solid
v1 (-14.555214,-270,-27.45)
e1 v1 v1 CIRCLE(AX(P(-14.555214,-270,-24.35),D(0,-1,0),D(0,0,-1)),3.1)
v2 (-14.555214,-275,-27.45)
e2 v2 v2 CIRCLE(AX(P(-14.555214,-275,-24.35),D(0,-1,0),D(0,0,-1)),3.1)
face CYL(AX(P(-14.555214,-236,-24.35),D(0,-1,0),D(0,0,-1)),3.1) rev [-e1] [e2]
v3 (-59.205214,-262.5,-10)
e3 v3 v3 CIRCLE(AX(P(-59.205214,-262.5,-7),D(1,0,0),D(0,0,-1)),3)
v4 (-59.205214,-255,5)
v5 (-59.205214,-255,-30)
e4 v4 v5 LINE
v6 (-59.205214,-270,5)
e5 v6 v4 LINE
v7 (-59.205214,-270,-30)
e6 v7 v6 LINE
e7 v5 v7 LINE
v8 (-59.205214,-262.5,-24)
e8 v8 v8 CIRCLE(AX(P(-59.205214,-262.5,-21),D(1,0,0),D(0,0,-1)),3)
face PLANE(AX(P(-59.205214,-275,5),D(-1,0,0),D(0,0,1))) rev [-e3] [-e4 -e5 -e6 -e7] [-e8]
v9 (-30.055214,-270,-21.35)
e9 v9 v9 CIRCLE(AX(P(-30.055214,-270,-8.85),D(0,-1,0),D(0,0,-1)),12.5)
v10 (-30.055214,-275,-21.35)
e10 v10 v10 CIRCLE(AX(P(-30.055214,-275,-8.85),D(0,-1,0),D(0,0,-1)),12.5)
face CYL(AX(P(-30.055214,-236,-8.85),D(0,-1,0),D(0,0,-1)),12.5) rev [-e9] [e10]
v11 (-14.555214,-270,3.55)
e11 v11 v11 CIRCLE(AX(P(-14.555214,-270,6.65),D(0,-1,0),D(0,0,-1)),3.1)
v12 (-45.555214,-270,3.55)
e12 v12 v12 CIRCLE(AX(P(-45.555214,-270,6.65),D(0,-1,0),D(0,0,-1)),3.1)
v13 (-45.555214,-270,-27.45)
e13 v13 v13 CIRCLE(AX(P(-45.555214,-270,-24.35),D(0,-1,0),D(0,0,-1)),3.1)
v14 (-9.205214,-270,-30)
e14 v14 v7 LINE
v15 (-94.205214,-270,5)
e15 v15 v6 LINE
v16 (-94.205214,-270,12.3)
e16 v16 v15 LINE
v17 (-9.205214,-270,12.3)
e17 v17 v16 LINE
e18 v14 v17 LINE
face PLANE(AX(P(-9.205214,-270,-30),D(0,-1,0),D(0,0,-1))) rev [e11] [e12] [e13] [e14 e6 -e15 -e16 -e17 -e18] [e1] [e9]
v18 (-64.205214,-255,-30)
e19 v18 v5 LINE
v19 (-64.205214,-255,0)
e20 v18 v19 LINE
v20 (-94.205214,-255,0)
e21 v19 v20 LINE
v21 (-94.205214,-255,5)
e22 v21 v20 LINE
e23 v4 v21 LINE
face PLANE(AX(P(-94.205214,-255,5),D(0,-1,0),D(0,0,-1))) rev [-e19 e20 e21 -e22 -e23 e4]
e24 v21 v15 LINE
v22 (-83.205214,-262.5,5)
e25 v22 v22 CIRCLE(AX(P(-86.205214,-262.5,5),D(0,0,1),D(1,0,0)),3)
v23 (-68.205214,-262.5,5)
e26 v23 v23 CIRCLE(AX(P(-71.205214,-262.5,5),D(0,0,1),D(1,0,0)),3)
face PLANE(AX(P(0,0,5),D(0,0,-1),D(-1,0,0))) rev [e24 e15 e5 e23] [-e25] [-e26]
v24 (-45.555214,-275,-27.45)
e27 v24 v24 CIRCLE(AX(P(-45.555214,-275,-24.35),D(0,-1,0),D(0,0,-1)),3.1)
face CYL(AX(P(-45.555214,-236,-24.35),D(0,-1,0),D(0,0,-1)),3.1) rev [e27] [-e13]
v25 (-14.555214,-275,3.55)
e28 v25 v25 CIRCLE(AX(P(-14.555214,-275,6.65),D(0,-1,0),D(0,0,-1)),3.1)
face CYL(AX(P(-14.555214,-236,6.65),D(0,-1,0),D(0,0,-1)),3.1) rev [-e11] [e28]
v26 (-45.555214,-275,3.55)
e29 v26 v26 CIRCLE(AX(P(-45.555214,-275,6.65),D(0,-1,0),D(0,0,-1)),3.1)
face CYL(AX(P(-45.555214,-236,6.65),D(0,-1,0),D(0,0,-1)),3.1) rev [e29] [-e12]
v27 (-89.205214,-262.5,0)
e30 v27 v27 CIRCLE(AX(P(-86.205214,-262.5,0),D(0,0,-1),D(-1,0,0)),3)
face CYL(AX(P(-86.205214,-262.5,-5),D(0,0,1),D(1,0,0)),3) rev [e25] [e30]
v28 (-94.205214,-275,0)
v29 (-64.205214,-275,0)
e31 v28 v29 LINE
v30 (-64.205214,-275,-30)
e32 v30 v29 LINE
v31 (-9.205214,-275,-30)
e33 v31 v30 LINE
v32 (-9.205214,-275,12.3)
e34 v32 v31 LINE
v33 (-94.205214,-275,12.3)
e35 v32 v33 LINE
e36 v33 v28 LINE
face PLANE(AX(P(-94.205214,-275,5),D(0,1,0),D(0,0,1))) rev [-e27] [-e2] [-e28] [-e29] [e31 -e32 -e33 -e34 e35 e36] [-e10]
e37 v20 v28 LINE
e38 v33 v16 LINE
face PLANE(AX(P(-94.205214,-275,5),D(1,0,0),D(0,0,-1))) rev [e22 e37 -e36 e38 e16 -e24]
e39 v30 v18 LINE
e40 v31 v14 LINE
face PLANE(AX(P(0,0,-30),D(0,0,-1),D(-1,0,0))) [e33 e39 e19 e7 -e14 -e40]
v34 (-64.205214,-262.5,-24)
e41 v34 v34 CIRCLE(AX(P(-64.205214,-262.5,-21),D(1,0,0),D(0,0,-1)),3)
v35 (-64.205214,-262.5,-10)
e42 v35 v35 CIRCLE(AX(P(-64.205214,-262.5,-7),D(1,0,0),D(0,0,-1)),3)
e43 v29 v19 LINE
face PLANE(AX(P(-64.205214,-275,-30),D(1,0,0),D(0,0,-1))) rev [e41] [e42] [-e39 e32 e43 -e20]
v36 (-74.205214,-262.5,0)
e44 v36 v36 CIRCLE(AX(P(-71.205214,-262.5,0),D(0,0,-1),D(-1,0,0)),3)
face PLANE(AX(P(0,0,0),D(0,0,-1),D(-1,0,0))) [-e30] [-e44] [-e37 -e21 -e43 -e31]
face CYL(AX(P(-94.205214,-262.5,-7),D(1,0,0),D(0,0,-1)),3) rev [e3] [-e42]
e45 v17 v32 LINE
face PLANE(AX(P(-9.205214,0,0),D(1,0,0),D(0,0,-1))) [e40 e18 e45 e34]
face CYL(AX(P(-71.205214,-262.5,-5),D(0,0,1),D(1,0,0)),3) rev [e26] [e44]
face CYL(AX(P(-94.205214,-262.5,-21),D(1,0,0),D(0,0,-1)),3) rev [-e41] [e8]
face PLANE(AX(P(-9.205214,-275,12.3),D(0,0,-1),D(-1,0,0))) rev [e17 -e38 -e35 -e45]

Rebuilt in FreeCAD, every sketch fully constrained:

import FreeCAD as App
import Part
import Sketcher

V = App.Vector


def add_polygon(sketch, points):
    """Adds a closed chain of lines whose ends are joined by coincident constraints."""
    first, n = sketch.GeometryCount, len(points)
    for a, b in zip(points, points[1:] + points[:1]):
        sketch.addGeometry(Part.LineSegment(App.Vector(*a, 0), App.Vector(*b, 0)), False)
    for i in range(n):
        sketch.addConstraint(Sketcher.Constraint("Coincident", first + i, 2, first + (i + 1) % n, 1))

doc = App.newDocument("Part")
body = doc.addObject("PartDesign::Body", "Body")

# Sketch on XY plane
sketch1 = doc.addObject("Sketcher::SketchObject", "Sketch")
body.addObject(sketch1)
sketch1.AttachmentSupport = (doc.XY_Plane, [""])
sketch1.MapMode = "FlatFace"
add_polygon(sketch1, [(-94, -255), (-94, -275), (-59, -275), (-59, -255)])  # lines 0-3
sketch1.addConstraint([
    Sketcher.Constraint("Vertical", 0),
    Sketcher.Constraint("Horizontal", 1),
    Sketcher.Constraint("Vertical", 2),
    Sketcher.Constraint("Horizontal", 3),
    Sketcher.Constraint("DistanceX", 1, 1, 1, 2, 35.0),
    Sketcher.Constraint("DistanceY", 0, 2, 0, 1, 20.0),
    Sketcher.Constraint("DistanceY", 0, 2, -1, 1, 275.0),
    Sketcher.Constraint("DistanceX", 0, 2, -1, 1, 94.205214),
])
pad1 = doc.addObject("PartDesign::Pad", "Pad")
body.addObject(pad1)
pad1.Profile = sketch1
pad1.Length = 5

# Sketch on XY plane
sketch2 = doc.addObject("Sketcher::SketchObject", "Sketch001")
body.addObject(sketch2)
sketch2.AttachmentSupport = (doc.XY_Plane, [""])
sketch2.MapMode = "FlatFace"
add_polygon(sketch2, [(-59, -255), (-59, -275), (-64, -275), (-64, -255)])  # lines 0-3
sketch2.addConstraint([
    Sketcher.Constraint("Vertical", 0),
    Sketcher.Constraint("Horizontal", 1),
    Sketcher.Constraint("Vertical", 2),
    Sketcher.Constraint("Horizontal", 3),
    Sketcher.Constraint("DistanceX", 1, 2, 1, 1, 5.0),
    Sketcher.Constraint("DistanceY", 0, 2, 0, 1, 20.0),
    Sketcher.Constraint("DistanceY", 0, 2, -1, 1, 275.0),
    Sketcher.Constraint("DistanceX", 0, 2, -1, 1, 59.205214),
])
pad2 = doc.addObject("PartDesign::Pad", "Pad001")
body.addObject(pad2)
pad2.Profile = sketch2
pad2.Length = 30
pad2.Reversed = True

# Sketch on YZ plane
sketch3 = doc.addObject("Sketcher::SketchObject", "Sketch002")
body.addObject(sketch3)
sketch3.AttachmentSupport = (doc.YZ_Plane, [""])
sketch3.MapMode = "FlatFace"
sketch3.AttachmentOffset = App.Placement(V(0, 0, -59.205214), App.Rotation())
add_polygon(sketch3, [(-270, 12), (-275, 12), (-275, -30), (-270, -30)])  # lines 0-3
sketch3.addConstraint([
    Sketcher.Constraint("Horizontal", 0),
    Sketcher.Constraint("Vertical", 1),
    Sketcher.Constraint("Horizontal", 2),
    Sketcher.Constraint("Vertical", 3),
    Sketcher.Constraint("DistanceX", 0, 2, 0, 1, 5.0),
    Sketcher.Constraint("DistanceY", 1, 2, 1, 1, 42.3),
    Sketcher.Constraint("DistanceX", 0, 2, -1, 1, 275.0),
    Sketcher.Constraint("DistanceY", 1, 2, -1, 1, 30.0),
])
pad3 = doc.addObject("PartDesign::Pad", "Pad002")
body.addObject(pad3)
pad3.Profile = sketch3
pad3.Length = 50

# Sketch on YZ plane
sketch4 = doc.addObject("Sketcher::SketchObject", "Sketch003")
body.addObject(sketch4)
sketch4.AttachmentSupport = (doc.YZ_Plane, [""])
sketch4.MapMode = "FlatFace"
sketch4.AttachmentOffset = App.Placement(V(0, 0, -59.205214), App.Rotation())
add_polygon(sketch4, [(-270, 5), (-275, 5), (-275, 12), (-270, 12)])  # lines 0-3
sketch4.addConstraint([
    Sketcher.Constraint("Horizontal", 0),
    Sketcher.Constraint("Vertical", 1),
    Sketcher.Constraint("Horizontal", 2),
    Sketcher.Constraint("Vertical", 3),
    Sketcher.Constraint("DistanceX", 0, 2, 0, 1, 5.0),
    Sketcher.Constraint("DistanceY", 1, 1, 1, 2, 7.3),
    Sketcher.Constraint("DistanceX", 0, 2, -1, 1, 275.0),
    Sketcher.Constraint("DistanceY", -1, 1, 0, 2, 5.0),
])
pad4 = doc.addObject("PartDesign::Pad", "Pad003")
body.addObject(pad4)
pad4.Profile = sketch4
pad4.Length = 35
pad4.Reversed = True

# Sketch on XZ plane
sketch5 = doc.addObject("Sketcher::SketchObject", "Sketch004")
body.addObject(sketch5)
sketch5.AttachmentSupport = (doc.XZ_Plane, [""])
sketch5.MapMode = "FlatFace"
sketch5.AttachmentOffset = App.Placement(V(0, 0, 275), App.Rotation())
sketch5.addGeometry([
    Part.Circle(V(-14.6, 6.7, 0), V(0, 0, 1), 3.1),  # 0
    Part.Circle(V(-45.6, -24.4, 0), V(0, 0, 1), 3.1),  # 1
    Part.Circle(V(-30.1, -8.8, 0), V(0, 0, 1), 12.5),  # 2
    Part.Circle(V(-45.6, 6.7, 0), V(0, 0, 1), 3.1),  # 3
    Part.Circle(V(-14.6, -24.4, 0), V(0, 0, 1), 3.1),  # 4
], False)
sketch5.addConstraint([
    Sketcher.Constraint("Equal", 0, 1),
    Sketcher.Constraint("Equal", 1, 3),
    Sketcher.Constraint("Equal", 3, 4),
    Sketcher.Constraint("Horizontal", 0, 3, 3, 3),
    Sketcher.Constraint("Horizontal", 1, 3, 4, 3),
    Sketcher.Constraint("Vertical", 1, 3, 3, 3),
    Sketcher.Constraint("Vertical", 0, 3, 4, 3),
    Sketcher.Constraint("Diameter", 2, 25.0),
    Sketcher.Constraint("Diameter", 0, 6.2),
    Sketcher.Constraint("DistanceX", 1, 3, 0, 3, 31.0),
    Sketcher.Constraint("DistanceY", 1, 3, 0, 3, 31.0),
    Sketcher.Constraint("DistanceX", 2, 3, 0, 3, 15.5),
    Sketcher.Constraint("DistanceY", 2, 3, 0, 3, 15.5),
    Sketcher.Constraint("DistanceY", -1, 1, 0, 3, 6.65),
    Sketcher.Constraint("DistanceX", 0, 3, -1, 1, 14.555214),
])
pocket1 = doc.addObject("PartDesign::Pocket", "Pocket")
body.addObject(pocket1)
pocket1.Profile = sketch5
pocket1.Length = 39

# Sketch on YZ plane
sketch6 = doc.addObject("Sketcher::SketchObject", "Sketch005")
body.addObject(sketch6)
sketch6.AttachmentSupport = (doc.YZ_Plane, [""])
sketch6.MapMode = "FlatFace"
sketch6.AttachmentOffset = App.Placement(V(0, 0, -59.205214), App.Rotation())
sketch6.addGeometry([
    Part.Circle(V(-262.5, -21, 0), V(0, 0, 1), 3),
    Part.Circle(V(-262.5, -7, 0), V(0, 0, 1), 3),
], False)
sketch6.addConstraint([
    Sketcher.Constraint("Equal", 0, 1),
    Sketcher.Constraint("Vertical", 0, 3, 1, 3),
    Sketcher.Constraint("Diameter", 0, 6.0),
    Sketcher.Constraint("DistanceY", 0, 3, -1, 1, 21.0),
    Sketcher.Constraint("DistanceY", 1, 3, -1, 1, 7.0),
    Sketcher.Constraint("DistanceX", 0, 3, -1, 1, 262.5),
])
pocket2 = doc.addObject("PartDesign::Pocket", "Pocket001")
body.addObject(pocket2)
pocket2.Profile = sketch6
pocket2.Type = "ThroughAll"

# Sketch on XY plane
sketch7 = doc.addObject("Sketcher::SketchObject", "Sketch006")
body.addObject(sketch7)
sketch7.AttachmentSupport = (doc.XY_Plane, [""])
sketch7.MapMode = "FlatFace"
sketch7.AttachmentOffset = App.Placement(V(0, 0, 5), App.Rotation())
sketch7.addGeometry([
    Part.Circle(V(-71.2, -262.5, 0), V(0, 0, 1), 3),
    Part.Circle(V(-86.2, -262.5, 0), V(0, 0, 1), 3),
], False)
sketch7.addConstraint([
    Sketcher.Constraint("Equal", 0, 1),
    Sketcher.Constraint("Horizontal", 0, 3, 1, 3),
    Sketcher.Constraint("Diameter", 0, 6.0),
    Sketcher.Constraint("DistanceX", 1, 3, 0, 3, 15.0),
    Sketcher.Constraint("DistanceY", 0, 3, -1, 1, 262.5),
    Sketcher.Constraint("DistanceX", 0, 3, -1, 1, 71.205214),
])
pocket3 = doc.addObject("PartDesign::Pocket", "Pocket002")
body.addObject(pocket3)
pocket3.Profile = sketch7
pocket3.Length = 10

doc.recompute()
